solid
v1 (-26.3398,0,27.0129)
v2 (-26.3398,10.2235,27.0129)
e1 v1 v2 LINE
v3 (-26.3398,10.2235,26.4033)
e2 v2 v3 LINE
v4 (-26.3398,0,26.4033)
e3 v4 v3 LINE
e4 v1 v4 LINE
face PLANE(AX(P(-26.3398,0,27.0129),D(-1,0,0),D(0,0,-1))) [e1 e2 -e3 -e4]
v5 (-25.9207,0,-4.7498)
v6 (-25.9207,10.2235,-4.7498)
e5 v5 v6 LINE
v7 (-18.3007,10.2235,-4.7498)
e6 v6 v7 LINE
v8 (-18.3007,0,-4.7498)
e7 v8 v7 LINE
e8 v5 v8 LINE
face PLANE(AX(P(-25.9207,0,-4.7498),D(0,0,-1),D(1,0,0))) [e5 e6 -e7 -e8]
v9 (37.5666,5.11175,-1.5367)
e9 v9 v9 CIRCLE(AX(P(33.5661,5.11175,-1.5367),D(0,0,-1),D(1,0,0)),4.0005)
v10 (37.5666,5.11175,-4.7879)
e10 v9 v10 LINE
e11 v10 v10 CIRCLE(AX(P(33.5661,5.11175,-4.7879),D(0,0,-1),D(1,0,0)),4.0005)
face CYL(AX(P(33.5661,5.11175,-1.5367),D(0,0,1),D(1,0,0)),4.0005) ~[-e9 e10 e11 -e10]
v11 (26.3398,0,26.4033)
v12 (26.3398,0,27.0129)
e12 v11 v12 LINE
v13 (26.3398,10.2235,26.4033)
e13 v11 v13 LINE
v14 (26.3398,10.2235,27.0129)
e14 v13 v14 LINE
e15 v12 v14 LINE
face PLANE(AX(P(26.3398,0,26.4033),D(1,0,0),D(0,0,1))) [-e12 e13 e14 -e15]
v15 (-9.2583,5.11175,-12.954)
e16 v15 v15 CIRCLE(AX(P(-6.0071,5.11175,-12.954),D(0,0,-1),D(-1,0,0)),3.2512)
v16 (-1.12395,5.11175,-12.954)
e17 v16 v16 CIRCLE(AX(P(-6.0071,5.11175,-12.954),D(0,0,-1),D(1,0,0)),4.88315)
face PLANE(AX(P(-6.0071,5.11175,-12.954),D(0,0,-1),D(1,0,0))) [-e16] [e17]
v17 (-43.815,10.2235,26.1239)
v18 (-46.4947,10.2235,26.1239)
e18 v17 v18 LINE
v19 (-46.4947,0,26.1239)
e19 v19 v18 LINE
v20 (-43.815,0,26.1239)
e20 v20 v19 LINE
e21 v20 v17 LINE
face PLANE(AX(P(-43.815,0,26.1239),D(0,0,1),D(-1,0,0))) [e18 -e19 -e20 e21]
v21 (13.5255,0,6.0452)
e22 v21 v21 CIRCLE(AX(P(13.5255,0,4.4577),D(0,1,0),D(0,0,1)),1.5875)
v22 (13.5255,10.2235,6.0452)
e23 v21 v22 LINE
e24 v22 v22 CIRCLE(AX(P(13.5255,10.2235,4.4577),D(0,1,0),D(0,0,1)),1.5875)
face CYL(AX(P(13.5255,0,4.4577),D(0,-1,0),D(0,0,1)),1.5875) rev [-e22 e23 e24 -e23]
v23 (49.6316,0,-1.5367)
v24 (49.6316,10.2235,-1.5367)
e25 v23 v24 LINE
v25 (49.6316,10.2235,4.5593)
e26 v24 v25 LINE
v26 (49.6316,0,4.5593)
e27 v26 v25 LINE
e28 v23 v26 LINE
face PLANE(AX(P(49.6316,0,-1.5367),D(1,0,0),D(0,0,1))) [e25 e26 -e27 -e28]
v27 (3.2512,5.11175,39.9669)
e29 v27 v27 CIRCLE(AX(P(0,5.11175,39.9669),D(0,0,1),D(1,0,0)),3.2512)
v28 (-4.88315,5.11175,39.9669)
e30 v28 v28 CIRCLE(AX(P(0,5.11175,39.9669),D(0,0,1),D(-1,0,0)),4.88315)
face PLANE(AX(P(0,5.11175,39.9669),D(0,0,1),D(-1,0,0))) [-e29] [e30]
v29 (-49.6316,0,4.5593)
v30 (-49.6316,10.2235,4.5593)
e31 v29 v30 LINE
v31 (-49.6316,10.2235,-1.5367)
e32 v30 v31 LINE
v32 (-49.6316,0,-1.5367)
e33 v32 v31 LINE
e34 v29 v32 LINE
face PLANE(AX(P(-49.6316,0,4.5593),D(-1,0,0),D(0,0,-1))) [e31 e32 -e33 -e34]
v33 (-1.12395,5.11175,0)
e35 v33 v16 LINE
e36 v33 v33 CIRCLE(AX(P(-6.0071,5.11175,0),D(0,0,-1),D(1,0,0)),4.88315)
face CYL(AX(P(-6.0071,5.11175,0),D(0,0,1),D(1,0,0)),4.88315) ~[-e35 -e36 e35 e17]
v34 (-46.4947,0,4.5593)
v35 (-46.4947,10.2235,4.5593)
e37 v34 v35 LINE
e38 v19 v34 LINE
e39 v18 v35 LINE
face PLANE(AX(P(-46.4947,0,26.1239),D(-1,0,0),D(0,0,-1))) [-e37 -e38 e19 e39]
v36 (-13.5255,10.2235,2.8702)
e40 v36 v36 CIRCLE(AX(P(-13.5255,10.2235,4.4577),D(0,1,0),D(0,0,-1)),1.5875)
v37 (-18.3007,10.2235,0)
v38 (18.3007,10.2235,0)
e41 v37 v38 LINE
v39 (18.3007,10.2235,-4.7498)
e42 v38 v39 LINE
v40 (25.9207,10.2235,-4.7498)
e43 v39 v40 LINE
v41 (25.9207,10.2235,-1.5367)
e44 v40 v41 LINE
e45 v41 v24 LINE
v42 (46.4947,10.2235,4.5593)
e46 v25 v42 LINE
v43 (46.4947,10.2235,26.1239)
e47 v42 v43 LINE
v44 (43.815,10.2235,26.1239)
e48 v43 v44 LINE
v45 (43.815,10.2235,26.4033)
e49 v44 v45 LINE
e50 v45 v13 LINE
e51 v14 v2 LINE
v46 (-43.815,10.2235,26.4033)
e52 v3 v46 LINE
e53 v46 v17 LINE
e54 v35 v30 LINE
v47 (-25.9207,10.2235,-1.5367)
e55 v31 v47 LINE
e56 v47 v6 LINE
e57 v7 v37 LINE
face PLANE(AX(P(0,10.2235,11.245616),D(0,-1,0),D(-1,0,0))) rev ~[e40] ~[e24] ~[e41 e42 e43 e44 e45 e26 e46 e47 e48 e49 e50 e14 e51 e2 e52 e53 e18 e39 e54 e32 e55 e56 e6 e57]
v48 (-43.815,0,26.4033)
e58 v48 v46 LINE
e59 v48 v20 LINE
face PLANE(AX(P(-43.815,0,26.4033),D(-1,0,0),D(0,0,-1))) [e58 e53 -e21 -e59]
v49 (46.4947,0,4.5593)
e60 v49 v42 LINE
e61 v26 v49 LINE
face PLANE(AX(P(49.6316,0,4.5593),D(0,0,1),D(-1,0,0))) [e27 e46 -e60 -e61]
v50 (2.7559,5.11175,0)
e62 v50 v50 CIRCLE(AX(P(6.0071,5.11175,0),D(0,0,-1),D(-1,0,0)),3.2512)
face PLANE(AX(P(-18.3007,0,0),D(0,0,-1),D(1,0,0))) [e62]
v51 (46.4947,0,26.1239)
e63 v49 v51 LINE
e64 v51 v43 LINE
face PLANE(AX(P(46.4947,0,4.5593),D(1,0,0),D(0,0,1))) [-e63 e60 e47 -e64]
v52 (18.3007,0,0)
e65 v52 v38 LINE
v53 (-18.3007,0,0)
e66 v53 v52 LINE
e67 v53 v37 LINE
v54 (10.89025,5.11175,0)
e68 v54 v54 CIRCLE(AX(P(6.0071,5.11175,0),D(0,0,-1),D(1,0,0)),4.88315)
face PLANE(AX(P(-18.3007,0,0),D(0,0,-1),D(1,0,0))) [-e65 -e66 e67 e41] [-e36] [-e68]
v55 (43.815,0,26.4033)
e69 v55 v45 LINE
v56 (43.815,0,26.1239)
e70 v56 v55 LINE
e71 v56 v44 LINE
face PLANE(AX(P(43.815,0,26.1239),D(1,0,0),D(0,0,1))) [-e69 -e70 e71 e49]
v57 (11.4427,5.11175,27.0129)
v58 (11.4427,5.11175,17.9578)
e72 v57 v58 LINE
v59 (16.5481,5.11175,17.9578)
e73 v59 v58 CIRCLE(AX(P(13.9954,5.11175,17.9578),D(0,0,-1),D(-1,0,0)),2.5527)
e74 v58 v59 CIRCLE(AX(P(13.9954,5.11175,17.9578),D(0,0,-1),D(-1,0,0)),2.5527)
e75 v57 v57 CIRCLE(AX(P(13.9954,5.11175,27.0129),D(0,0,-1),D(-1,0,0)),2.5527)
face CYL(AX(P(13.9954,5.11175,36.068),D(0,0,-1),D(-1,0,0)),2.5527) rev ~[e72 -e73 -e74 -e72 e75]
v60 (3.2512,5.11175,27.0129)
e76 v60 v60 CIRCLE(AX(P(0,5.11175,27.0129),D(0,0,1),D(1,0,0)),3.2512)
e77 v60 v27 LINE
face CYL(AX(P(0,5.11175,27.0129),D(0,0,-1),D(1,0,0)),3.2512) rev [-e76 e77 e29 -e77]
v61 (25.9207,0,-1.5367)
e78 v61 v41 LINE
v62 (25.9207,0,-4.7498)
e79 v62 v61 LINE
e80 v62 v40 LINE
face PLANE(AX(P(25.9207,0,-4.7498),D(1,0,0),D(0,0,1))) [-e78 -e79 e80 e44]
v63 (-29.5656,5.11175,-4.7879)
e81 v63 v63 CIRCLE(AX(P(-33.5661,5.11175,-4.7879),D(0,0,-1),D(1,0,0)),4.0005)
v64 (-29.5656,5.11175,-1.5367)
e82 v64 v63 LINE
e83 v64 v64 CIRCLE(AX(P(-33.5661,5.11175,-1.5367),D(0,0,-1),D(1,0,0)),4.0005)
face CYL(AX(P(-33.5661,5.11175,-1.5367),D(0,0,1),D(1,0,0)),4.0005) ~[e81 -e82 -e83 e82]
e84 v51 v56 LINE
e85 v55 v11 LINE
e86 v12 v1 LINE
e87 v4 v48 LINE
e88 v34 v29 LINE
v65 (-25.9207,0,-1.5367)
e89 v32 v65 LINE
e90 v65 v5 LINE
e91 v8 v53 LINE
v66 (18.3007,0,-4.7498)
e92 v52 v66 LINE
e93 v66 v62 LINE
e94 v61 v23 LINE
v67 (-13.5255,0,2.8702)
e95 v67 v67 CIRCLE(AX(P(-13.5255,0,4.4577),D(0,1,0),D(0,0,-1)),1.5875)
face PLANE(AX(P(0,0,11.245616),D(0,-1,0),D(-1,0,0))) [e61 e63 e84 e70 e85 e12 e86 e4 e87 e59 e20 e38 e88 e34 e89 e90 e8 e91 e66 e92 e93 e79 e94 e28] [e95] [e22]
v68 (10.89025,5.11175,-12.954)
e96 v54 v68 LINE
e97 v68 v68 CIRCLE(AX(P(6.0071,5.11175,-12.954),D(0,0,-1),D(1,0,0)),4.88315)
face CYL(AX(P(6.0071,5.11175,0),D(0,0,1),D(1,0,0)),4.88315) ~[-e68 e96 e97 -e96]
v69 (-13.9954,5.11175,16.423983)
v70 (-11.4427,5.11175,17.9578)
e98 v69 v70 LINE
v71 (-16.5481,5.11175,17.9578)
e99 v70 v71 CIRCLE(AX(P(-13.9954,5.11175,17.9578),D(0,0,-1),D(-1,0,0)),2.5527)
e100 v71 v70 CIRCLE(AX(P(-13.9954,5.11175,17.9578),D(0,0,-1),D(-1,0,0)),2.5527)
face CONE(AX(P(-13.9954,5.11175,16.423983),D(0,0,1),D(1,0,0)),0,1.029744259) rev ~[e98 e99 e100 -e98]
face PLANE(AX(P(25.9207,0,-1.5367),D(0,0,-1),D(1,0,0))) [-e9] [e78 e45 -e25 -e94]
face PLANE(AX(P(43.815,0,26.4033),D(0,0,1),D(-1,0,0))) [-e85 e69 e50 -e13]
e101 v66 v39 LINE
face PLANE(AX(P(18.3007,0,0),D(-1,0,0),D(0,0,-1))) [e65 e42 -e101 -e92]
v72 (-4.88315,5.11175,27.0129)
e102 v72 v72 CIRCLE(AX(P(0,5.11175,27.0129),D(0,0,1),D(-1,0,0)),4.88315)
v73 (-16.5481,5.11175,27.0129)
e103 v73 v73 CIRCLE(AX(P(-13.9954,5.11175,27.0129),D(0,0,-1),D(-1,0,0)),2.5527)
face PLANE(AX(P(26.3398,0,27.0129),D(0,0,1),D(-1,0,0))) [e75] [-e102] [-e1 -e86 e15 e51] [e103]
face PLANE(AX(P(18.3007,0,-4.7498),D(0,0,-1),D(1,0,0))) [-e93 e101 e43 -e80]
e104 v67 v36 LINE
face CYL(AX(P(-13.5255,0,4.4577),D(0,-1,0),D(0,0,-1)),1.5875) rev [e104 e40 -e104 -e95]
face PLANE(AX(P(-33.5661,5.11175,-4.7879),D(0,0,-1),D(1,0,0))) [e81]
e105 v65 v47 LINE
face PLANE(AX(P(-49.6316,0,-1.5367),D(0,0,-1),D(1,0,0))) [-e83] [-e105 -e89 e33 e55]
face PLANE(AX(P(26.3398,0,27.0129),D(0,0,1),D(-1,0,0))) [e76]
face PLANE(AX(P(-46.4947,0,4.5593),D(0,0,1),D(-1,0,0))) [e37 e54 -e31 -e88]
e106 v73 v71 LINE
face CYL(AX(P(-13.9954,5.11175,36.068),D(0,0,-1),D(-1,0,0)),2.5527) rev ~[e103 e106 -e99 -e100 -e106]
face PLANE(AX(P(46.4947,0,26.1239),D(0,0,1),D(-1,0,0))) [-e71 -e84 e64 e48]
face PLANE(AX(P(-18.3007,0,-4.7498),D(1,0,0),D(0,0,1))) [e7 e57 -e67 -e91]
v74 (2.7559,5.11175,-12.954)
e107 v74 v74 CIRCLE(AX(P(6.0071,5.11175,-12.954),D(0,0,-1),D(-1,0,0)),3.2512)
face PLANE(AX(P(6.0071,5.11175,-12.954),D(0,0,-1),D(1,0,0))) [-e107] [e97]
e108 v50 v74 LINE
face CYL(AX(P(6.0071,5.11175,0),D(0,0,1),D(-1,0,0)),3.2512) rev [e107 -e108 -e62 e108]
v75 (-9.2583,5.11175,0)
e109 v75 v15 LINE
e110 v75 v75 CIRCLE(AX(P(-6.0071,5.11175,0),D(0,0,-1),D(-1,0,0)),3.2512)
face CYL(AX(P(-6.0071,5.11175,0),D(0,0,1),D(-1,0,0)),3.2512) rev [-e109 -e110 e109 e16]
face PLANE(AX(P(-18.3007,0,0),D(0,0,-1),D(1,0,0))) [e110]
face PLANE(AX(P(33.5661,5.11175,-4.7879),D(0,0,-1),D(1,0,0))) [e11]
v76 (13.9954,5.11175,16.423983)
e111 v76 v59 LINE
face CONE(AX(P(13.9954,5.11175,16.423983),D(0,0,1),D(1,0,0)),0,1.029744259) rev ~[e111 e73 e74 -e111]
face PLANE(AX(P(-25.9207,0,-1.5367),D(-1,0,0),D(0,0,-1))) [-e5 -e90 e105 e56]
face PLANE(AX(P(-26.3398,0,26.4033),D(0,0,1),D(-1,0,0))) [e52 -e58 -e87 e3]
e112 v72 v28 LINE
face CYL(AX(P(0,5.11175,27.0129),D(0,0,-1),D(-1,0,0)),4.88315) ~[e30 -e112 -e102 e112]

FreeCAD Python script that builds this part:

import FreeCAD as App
import Part
import Sketcher
Q = App.Units.Quantity


def add_polygon(sketch, points):
    """Adds a closed chain of lines whose ends are joined by coincident constraints."""
    first, n = sketch.GeometryCount, len(points)
    for a, b in zip(points, points[1:] + points[:1]):
        sketch.addGeometry(Part.LineSegment(App.Vector(*a, 0), App.Vector(*b, 0)), False)
    for i in range(n):
        sketch.addConstraint(Sketcher.Constraint("Coincident", first + i, 2, first + (i + 1) % n, 1))

doc = App.newDocument("Part")
body = doc.addObject("PartDesign::Body", "Body")

sketch1 = body.newObject("Sketcher::SketchObject", "Sketch")
sketch1.AttachmentSupport = (doc.getObject("XZ_Plane"), [""])
sketch1.MapMode = "FlatFace"
add_polygon(sketch1, [(18.3007, 0), (-18.3007, 0), (-18.3007, -4.7498), (-25.9207, -4.7498), (-25.9207, -1.5367), (-49.6316, -1.5367), (-49.6316, 4.5593), (-46.4947, 4.5593), (-46.4947, 26.1239), (-43.815, 26.1239), (-43.815, 26.4033), (-26.3398, 26.4033), (-26.3398, 27.0129), (26.3398, 27.0129), (26.3398, 26.4033), (43.815, 26.4033), (43.815, 26.1239), (46.4947, 26.1239), (46.4947, 4.5593), (49.6316, 4.5593), (49.6316, -1.5367), (25.9207, -1.5367), (25.9207, -4.7498), (18.3007, -4.7498)])
sketch1.addGeometry(Part.Circle(App.Vector(13.5255, 4.4577, 0), App.Vector(0, 0, 1), 1.5875), False)
sketch1.addGeometry(Part.Circle(App.Vector(-13.5255, 4.4577, 0), App.Vector(0, 0, 1), 1.5875), False)
sketch1.addConstraint([
    Sketcher.Constraint("Horizontal", 0),
    Sketcher.Constraint("Vertical", 1),
    Sketcher.Constraint("Horizontal", 2),
    Sketcher.Constraint("Vertical", 3),
    Sketcher.Constraint("Horizontal", 4),
    Sketcher.Constraint("Vertical", 5),
    Sketcher.Constraint("Horizontal", 6),
    Sketcher.Constraint("Vertical", 7),
    Sketcher.Constraint("Horizontal", 8),
    Sketcher.Constraint("Vertical", 9),
    Sketcher.Constraint("Horizontal", 10),
    Sketcher.Constraint("Vertical", 11),
    Sketcher.Constraint("Horizontal", 12),
    Sketcher.Constraint("Vertical", 13),
    Sketcher.Constraint("Horizontal", 14),
    Sketcher.Constraint("Vertical", 15),
    Sketcher.Constraint("Horizontal", 16),
    Sketcher.Constraint("Vertical", 17),
    Sketcher.Constraint("Horizontal", 18),
    Sketcher.Constraint("Vertical", 19),
    Sketcher.Constraint("Horizontal", 20),
    Sketcher.Constraint("Vertical", 21),
    Sketcher.Constraint("Horizontal", 22),
    Sketcher.Constraint("Vertical", 23),
    Sketcher.Constraint("Equal", 24, 25),
    Sketcher.Constraint("Symmetric", 0, 2, 23, 2, -1, 1),
    Sketcher.Constraint("Symmetric", 24, 3, 25, 3, -2),
    Sketcher.Constraint("Symmetric", 10, 2, 13, 2, -2),
    Sketcher.Constraint("Symmetric", 8, 2, 15, 2, -2),
    Sketcher.Constraint("Symmetric", 6, 2, 17, 2, -2),
    Sketcher.Constraint("Symmetric", 4, 2, 19, 2, -2),
    Sketcher.Constraint("Symmetric", 2, 2, 21, 2, -2),
    Sketcher.Constraint("Diameter", 24, Q("0.125 in")),
    Sketcher.Constraint("DistanceX", 2, 2, 2, 1, Q("0.3 in")),
    Sketcher.Constraint("DistanceY", 5, 1, 5, 2, Q("0.24 in")),
    Sketcher.Constraint("DistanceY", 4, 2, 9, 2, Q("1.1 in")),
    Sketcher.Constraint("DistanceX", 0, 2, 0, 1, Q("1.441 in")),
    Sketcher.Constraint("DistanceX", 10, 1, 10, 2, Q("0.688 in")),
    Sketcher.Constraint("DistanceX", 12, 1, 12, 2, Q("2.074 in")),
    Sketcher.Constraint("DistanceY", 1, 2, 1, 1, Q("0.187 in")),
    Sketcher.Constraint("DistanceY", 7, 1, 7, 2, Q("0.849 in")),
    Sketcher.Constraint("DistanceY", 11, 1, 11, 2, Q("0.024 in")),
    Sketcher.Constraint("DistanceX", 6, 2, 3, 2, Q("0.81 in")),
    Sketcher.Constraint("DistanceX", 4, 2, 4, 1, Q("0.9335 in")),
    Sketcher.Constraint("DistanceY", 3, 1, 3, 2, Q("0.1265 in")),
    Sketcher.Constraint("DistanceX", 25, 3, 24, 3, Q("1.065 in")),
    Sketcher.Constraint("DistanceY", 3, 2, 25, 3, Q("0.236 in")),
])
pad1 = body.newObject("PartDesign::Pad", "Pad")
pad1.Profile = sketch1
pad1.Length = Q("0.4025 in")
pad1.Reversed = True

sketch2 = body.newObject("Sketcher::SketchObject", "Sketch001")
sketch2.AttachmentSupport = (doc.getObject("XY_Plane"), [""])
sketch2.MapMode = "FlatFace"
sketch2.AttachmentOffset = App.Placement(App.Vector(0, 0, 1.0635 * 25.4), App.Rotation())
sketch2.addGeometry([
    Part.Circle(App.Vector(0, 5.11175, 0), App.Vector(0, 0, 1), 4.88315),
    Part.Circle(App.Vector(0, 5.11175, 0), App.Vector(0, 0, 1), 3.2512),
], False)
sketch2.addConstraint([
    Sketcher.Constraint("Coincident", 1, 3, 0, 3),
    Sketcher.Constraint("PointOnObject", 0, 3, -2),
    Sketcher.Constraint("Diameter", 1, Q("0.256 in")),
    Sketcher.Constraint("Diameter", 0, Q("0.3845 in")),
    Sketcher.Constraint("DistanceY", -1, 1, 0, 3, Q("5.11175 mm")),
])
pad2 = body.newObject("PartDesign::Pad", "Pad001")
pad2.Profile = sketch2
pad2.Length = Q("0.51 in")

sketch3 = body.newObject("Sketcher::SketchObject", "Sketch002")
sketch3.AttachmentSupport = (doc.getObject("XY_Plane"), [""])
sketch3.MapMode = "FlatFace"
sketch3.addGeometry([
    Part.Circle(App.Vector(-6.0071, 5.11175, 0), App.Vector(0, 0, 1), 4.88315),
    Part.Circle(App.Vector(-6.0071, 5.11175, 0), App.Vector(0, 0, 1), 3.2512),
    Part.Circle(App.Vector(6.0071, 5.11175, 0), App.Vector(0, 0, 1), 4.88315),
    Part.Circle(App.Vector(6.0071, 5.11175, 0), App.Vector(0, 0, 1), 3.2512),
], False)
sketch3.addConstraint([
    Sketcher.Constraint("Coincident", 1, 3, 0, 3),
    Sketcher.Constraint("Coincident", 3, 3, 2, 3),
    Sketcher.Constraint("Equal", 0, 2),
    Sketcher.Constraint("Equal", 1, 3),
    Sketcher.Constraint("Symmetric", 0, 3, 2, 3, -2),
    Sketcher.Constraint("Diameter", 1, Q("0.256 in")),
    Sketcher.Constraint("Diameter", 0, Q("0.3845 in")),
    Sketcher.Constraint("DistanceX", 0, 3, 2, 3, Q("0.473 in")),
    Sketcher.Constraint("DistanceY", -1, 1, 0, 3, Q("5.11175 mm")),
])
pad3 = body.newObject("PartDesign::Pad", "Pad002")
pad3.Profile = sketch3
pad3.Length = Q("0.51 in")
pad3.Reversed = True

sketch4 = body.newObject("Sketcher::SketchObject", "Sketch003")
sketch4.AttachmentSupport = (doc.getObject("XY_Plane"), [""])
sketch4.MapMode = "FlatFace"
sketch4.AttachmentOffset = App.Placement(App.Vector(0, 0, 1.0635 * 25.4), App.Rotation())
sketch4.addGeometry([
    Part.Circle(App.Vector(-13.9954, 5.11175, 0), App.Vector(0, 0, 1), 2.5527),
    Part.Circle(App.Vector(13.9954, 5.11175, 0), App.Vector(0, 0, 1), 2.5527),
], False)
sketch4.addConstraint([
    Sketcher.Constraint("Equal", 0, 1),
    Sketcher.Constraint("Symmetric", 0, 3, 1, 3, -2),
    Sketcher.Constraint("Diameter", 0, Q("0.201 in")),
    Sketcher.Constraint("DistanceX", 0, 3, -1, 1, Q("0.551 in")),
    Sketcher.Constraint("DistanceY", -1, 1, 0, 3, Q("5.11175 mm")),
])
doc.recompute()
hole = body.newObject("PartDesign::Hole", "Hole")
hole.Profile = sketch4
hole.ThreadType = "None"
hole.Diameter = Q("0.201 in")
hole.DepthType = "Dimension"
hole.Depth = Q("0.3565 in")
hole.DrillPoint = "Angled"
hole.DrillPointAngle = 118

sketch5 = body.newObject("Sketcher::SketchObject", "Sketch004")
sketch5.AttachmentSupport = (doc.getObject("XY_Plane"), [""])
sketch5.MapMode = "FlatFace"
sketch5.AttachmentOffset = App.Placement(App.Vector(0, 0, -0.0605 * 25.4), App.Rotation())
sketch5.addGeometry([
    Part.Circle(App.Vector(33.5661, 5.11175, 0), App.Vector(0, 0, 1), 4.0005),
    Part.Circle(App.Vector(-33.5661, 5.11175, 0), App.Vector(0, 0, 1), 4.0005),
], False)
sketch5.addConstraint([
    Sketcher.Constraint("Equal", 0, 1),
    Sketcher.Constraint("Symmetric", 0, 3, 1, 3, -2),
    Sketcher.Constraint("Diameter", 0, Q("0.315 in")),
    Sketcher.Constraint("DistanceX", 1, 3, 0, 3, Q("2.643 in")),
    Sketcher.Constraint("DistanceY", -1, 1, 0, 3, Q("5.11175 mm")),
])
pad4 = body.newObject("PartDesign::Pad", "Pad003")
pad4.Profile = sketch5
pad4.Length = Q("0.128 in")
pad4.Reversed = True

doc.recompute()
